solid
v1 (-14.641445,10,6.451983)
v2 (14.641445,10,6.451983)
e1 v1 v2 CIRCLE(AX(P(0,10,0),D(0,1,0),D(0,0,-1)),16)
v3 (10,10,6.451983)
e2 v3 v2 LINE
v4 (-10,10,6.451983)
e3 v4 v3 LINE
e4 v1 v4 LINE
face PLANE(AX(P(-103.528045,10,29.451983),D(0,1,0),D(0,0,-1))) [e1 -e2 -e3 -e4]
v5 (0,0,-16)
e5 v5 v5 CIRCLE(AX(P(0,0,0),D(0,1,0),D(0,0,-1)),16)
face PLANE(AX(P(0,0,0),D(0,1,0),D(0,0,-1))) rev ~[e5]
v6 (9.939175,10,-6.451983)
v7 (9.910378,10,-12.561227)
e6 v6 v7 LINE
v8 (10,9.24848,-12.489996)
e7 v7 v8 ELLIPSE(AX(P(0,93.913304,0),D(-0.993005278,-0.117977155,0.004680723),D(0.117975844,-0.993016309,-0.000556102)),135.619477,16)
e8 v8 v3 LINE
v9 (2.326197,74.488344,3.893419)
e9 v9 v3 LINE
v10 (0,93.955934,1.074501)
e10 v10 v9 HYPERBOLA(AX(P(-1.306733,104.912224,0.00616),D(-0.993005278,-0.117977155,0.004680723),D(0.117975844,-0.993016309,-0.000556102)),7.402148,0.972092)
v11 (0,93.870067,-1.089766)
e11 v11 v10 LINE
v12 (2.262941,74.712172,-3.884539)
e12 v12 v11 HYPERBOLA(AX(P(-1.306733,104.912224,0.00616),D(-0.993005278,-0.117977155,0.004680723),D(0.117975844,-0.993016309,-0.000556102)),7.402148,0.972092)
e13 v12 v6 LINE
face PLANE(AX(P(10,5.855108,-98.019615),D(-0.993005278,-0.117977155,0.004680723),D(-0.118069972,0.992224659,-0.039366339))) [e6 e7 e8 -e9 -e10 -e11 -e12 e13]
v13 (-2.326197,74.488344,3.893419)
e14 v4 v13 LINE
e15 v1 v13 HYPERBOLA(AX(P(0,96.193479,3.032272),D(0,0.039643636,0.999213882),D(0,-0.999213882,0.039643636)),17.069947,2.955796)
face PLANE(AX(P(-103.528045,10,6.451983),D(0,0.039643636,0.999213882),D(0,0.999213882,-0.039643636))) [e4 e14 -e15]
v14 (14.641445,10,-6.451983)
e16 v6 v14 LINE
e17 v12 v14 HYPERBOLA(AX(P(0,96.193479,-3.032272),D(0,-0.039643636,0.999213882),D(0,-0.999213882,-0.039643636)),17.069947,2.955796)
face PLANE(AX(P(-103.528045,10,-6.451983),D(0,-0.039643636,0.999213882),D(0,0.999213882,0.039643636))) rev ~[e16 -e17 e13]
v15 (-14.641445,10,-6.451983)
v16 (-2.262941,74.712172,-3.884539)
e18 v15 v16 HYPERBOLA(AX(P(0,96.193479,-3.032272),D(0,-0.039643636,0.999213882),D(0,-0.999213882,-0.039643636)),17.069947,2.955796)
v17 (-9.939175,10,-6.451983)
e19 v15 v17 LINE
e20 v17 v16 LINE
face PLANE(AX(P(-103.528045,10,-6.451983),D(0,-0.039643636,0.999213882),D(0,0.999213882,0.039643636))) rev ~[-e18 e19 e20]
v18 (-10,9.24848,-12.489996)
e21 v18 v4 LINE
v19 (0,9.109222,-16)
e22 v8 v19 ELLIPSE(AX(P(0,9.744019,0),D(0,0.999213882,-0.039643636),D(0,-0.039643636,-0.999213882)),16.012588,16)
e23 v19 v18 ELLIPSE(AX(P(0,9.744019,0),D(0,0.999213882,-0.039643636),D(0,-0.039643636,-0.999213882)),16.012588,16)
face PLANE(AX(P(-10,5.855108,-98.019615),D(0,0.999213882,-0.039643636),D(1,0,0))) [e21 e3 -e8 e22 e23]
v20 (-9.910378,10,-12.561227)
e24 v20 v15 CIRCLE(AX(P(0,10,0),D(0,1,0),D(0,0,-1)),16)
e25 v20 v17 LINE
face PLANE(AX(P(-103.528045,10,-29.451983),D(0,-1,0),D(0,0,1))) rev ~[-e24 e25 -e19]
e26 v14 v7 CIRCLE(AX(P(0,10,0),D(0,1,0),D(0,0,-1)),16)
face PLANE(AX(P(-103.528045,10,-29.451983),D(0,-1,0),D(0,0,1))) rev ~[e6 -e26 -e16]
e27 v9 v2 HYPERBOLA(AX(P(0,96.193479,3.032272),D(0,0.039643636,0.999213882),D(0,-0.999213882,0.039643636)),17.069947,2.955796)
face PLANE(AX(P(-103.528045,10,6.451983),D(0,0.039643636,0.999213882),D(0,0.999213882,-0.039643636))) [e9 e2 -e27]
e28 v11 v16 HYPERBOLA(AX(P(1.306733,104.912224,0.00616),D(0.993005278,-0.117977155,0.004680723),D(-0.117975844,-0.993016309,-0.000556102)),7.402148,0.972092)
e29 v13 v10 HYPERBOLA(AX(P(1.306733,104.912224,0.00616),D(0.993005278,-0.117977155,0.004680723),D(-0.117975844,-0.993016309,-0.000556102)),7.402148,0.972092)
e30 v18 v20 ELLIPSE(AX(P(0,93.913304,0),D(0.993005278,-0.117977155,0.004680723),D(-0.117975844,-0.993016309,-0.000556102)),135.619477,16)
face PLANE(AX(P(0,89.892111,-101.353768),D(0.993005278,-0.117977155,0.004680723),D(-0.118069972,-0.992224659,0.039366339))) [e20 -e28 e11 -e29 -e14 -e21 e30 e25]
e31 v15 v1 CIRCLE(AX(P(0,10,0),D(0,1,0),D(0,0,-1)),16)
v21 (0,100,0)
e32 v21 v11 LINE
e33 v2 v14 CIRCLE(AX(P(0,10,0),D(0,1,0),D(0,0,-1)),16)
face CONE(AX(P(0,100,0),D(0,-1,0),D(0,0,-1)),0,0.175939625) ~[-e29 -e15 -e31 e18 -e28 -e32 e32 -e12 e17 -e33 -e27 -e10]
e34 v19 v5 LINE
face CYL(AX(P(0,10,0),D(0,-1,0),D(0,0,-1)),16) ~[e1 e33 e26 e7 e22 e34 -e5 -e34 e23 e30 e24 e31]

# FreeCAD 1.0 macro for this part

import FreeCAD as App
import Part
import Sketcher
from FreeCAD import Vector


def add_polygon(sketch, points):
    """Adds a closed chain of lines whose ends are joined by coincident constraints."""
    first, n = sketch.GeometryCount, len(points)
    for a, b in zip(points, points[1:] + points[:1]):
        sketch.addGeometry(Part.LineSegment(App.Vector(*a, 0), App.Vector(*b, 0)), False)
    for i in range(n):
        sketch.addConstraint(Sketcher.Constraint("Coincident", first + i, 2, first + (i + 1) % n, 1))

doc = App.newDocument("Part")
body = doc.addObject("PartDesign::Body", "Body")

# Sketch on XY plane
sketch1 = doc.addObject("Sketcher::SketchObject", "Sketch")
body.addObject(sketch1)
sketch1.AttachmentSupport = (doc.XY_Plane, [""])
sketch1.MapMode = "FlatFace"
add_polygon(sketch1, [(0, 100), (-16, 10), (-16, 0), (0, 0)])  # lines 0-3
sketch1.addConstraint(Sketcher.Constraint("Vertical", 1))
sketch1.addConstraint(Sketcher.Constraint("Horizontal", 2))
sketch1.addConstraint(Sketcher.Constraint("Vertical", 3))
sketch1.addConstraint(Sketcher.Constraint("Coincident", 2, 2, -1, 1))
sketch1.addConstraint(Sketcher.Constraint("DistanceX", 2, 1, 2, 2, 16.0))
sketch1.addConstraint(Sketcher.Constraint("DistanceY", 1, 2, 1, 1, 10.0))
sketch1.addConstraint(Sketcher.Constraint("DistanceY", 3, 1, 3, 2, 100.0))
revolution = doc.addObject("PartDesign::Revolution", "Revolution")
body.addObject(revolution)
revolution.Profile = sketch1
revolution.ReferenceAxis = (sketch1, ["V_Axis"])
revolution.Angle = 360

# Sketch on YZ plane
sketch2 = doc.addObject("Sketcher::SketchObject", "Sketch001")
body.addObject(sketch2)
sketch2.AttachmentSupport = (doc.YZ_Plane, [""])
sketch2.MapMode = "FlatFace"
add_polygon(sketch2, [(10, 29), (10, 6), (111, 2), (111, 29)])  # lines 0-3
add_polygon(sketch2, [(10, -6), (10, -29), (111, -29), (111, -2)])  # lines 4-7
sketch2.addConstraint(Sketcher.Constraint("Vertical", 0))
sketch2.addConstraint(Sketcher.Constraint("Vertical", 2))
sketch2.addConstraint(Sketcher.Constraint("Horizontal", 3))
sketch2.addConstraint(Sketcher.Constraint("Vertical", 4))
sketch2.addConstraint(Sketcher.Constraint("Horizontal", 5))
sketch2.addConstraint(Sketcher.Constraint("Vertical", 6))
sketch2.addConstraint(Sketcher.Constraint("Symmetric", 3, 2, 4, 2, -1))
sketch2.addConstraint(Sketcher.Constraint("Symmetric", 1, 2, 6, 2, -1))
sketch2.addConstraint(Sketcher.Constraint("Equal", 0, 4))
sketch2.addConstraint(Sketcher.Constraint("DistanceY", 0, 2, 0, 1, 23.0))
sketch2.addConstraint(Sketcher.Constraint("DistanceY", 2, 1, 2, 2, 27.0))
sketch2.addConstraint(Sketcher.Constraint("DistanceX", -1, 1, 0, 2, 10.0))
sketch2.addConstraint(Sketcher.Constraint("DistanceX", 3, 2, 3, 1, 100.819601))
sketch2.addConstraint(Sketcher.Constraint("DistanceY", -1, 1, 0, 2, 6.451983))
pocket1 = doc.addObject("PartDesign::Pocket", "Pocket")
body.addObject(pocket1)
pocket1.Profile = sketch2
pocket1.Type = "ThroughAll"
pocket1.Midplane = True

# Sketch on an angled plane
sketch3 = doc.addObject("Sketcher::SketchObject", "Sketch002")
body.addObject(sketch3)
sketch3.Placement = App.Placement(Vector(0, 0.271295, 6.837968), App.Rotation(Vector(1, 0, 0), Vector(0, 0.999213882, -0.039643636), Vector(0, 0.039643636, 0.999213882), "ZXY"))
add_polygon(sketch3, [(-10, 10), (10, 10), (0, 94)])  # lines 0-2
sketch3.addConstraint(Sketcher.Constraint("Horizontal", 0))
sketch3.addConstraint(Sketcher.Constraint("PointOnObject", 1, 2, -2))
sketch3.addConstraint(Sketcher.Constraint("Equal", 1, 2))
sketch3.addConstraint(Sketcher.Constraint("DistanceX", 0, 1, 0, 2, 20.0))
sketch3.addConstraint(Sketcher.Constraint("Distance", 1, 84.69554))
sketch3.addConstraint(Sketcher.Constraint("DistanceY", -1, 1, 0, 2, 9.736359))
pocket2 = doc.addObject("PartDesign::Pocket", "Pocket001")
body.addObject(pocket2)
pocket2.Profile = sketch3
pocket2.Type = "ThroughAll"
pocket2.Midplane = True

doc.recompute()
